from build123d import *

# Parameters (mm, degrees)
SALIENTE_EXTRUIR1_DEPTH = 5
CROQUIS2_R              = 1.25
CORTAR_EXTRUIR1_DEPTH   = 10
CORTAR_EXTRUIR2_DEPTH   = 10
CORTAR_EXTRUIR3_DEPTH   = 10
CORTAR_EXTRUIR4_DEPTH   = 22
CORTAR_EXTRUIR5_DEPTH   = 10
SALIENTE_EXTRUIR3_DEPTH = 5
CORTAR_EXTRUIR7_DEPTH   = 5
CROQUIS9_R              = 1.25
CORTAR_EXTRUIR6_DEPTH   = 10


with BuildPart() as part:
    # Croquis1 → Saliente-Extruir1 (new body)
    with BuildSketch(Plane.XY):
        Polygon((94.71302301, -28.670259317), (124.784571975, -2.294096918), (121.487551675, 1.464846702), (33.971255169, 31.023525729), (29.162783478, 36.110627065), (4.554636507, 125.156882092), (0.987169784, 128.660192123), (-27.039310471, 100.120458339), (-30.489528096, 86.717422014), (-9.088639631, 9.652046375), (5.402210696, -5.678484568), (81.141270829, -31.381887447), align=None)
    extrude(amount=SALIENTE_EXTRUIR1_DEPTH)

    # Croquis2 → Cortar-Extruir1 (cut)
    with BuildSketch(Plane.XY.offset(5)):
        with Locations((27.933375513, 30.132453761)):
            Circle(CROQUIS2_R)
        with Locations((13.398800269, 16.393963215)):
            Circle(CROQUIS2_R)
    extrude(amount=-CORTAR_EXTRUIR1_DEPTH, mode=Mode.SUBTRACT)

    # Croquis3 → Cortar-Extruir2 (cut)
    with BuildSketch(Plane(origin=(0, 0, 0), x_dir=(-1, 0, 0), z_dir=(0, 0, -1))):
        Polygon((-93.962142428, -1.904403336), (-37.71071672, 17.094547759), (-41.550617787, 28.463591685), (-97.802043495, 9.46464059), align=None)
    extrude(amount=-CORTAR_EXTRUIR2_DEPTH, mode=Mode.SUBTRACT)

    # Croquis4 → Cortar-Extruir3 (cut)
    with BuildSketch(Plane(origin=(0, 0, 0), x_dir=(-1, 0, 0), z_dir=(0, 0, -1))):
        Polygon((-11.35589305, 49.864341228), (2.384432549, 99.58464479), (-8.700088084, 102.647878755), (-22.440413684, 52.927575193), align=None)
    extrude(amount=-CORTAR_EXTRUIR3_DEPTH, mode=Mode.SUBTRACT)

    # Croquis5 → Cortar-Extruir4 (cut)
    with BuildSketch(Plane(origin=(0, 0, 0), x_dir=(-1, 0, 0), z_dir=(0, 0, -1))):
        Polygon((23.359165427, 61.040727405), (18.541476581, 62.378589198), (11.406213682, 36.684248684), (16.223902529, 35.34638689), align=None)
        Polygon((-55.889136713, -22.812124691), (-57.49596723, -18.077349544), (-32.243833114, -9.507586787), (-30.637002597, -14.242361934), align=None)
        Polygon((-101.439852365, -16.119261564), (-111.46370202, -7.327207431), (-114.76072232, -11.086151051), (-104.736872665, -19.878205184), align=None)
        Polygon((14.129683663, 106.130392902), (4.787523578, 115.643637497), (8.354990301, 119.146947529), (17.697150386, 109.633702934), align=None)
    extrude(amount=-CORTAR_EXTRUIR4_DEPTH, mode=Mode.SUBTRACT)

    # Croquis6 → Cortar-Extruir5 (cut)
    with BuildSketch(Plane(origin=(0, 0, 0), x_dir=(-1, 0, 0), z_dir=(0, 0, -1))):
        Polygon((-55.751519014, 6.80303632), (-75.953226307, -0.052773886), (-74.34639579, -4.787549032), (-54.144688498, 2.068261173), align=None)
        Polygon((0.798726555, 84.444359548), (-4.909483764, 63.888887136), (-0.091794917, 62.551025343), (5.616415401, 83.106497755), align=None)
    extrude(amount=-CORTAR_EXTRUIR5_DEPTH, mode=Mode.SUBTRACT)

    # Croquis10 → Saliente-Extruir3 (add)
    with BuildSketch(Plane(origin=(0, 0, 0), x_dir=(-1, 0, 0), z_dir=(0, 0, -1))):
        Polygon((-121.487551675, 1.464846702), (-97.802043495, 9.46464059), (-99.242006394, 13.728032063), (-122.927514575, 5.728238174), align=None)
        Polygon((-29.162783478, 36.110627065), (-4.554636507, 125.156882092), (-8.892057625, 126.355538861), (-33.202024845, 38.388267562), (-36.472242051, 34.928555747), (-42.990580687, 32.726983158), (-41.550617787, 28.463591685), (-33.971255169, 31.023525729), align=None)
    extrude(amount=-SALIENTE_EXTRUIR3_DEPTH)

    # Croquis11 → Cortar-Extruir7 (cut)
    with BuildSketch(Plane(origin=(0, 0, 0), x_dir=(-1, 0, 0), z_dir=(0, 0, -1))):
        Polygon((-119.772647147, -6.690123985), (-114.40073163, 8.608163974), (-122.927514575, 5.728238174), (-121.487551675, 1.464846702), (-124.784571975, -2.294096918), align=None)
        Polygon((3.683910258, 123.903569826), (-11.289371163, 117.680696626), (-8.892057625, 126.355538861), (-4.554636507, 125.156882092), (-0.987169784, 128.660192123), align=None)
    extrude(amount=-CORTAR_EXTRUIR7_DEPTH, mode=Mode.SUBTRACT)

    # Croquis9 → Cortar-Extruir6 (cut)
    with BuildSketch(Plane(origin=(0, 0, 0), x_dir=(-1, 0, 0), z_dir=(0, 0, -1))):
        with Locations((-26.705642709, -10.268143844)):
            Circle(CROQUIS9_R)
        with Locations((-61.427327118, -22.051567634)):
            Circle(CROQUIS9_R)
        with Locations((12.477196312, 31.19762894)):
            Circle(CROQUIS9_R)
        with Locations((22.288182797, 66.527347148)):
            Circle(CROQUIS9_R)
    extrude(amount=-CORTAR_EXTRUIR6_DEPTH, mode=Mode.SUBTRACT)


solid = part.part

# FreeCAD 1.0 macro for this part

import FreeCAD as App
import Part
import Sketcher
Q = App.Units.Quantity


def add_polygon(sketch, points):
    """Adds a closed chain of lines whose ends are joined by coincident constraints."""
    first, n = sketch.GeometryCount, len(points)
    for a, b in zip(points, points[1:] + points[:1]):
        sketch.addGeometry(Part.LineSegment(App.Vector(*a, 0), App.Vector(*b, 0)), False)
    for i in range(n):
        sketch.addConstraint(Sketcher.Constraint("Coincident", first + i, 2, first + (i + 1) % n, 1))

doc = App.newDocument("Part")
params = doc.addObject("Spreadsheet::Sheet", "Params")
for row, (alias, value) in enumerate([
    ("sketch1_length", "40 mm"),
    ("sketch1_length2", "5 mm"),
    ("sketch1_length3", "7 mm"),
    ("pad1_length", "5 mm"),
    ("sketch2_diameter", "2.5 mm"),
    ("pocket1_length", "10 mm"),
    ("sketch3_length", "12 mm"),
    ("pocket2_length", "10 mm"),
    ("sketch4_length", "11.5 mm"),
    ("pocket3_length", "10 mm"),
    ("sketch5_length", "5 mm"),
    ("pocket4_length", "22 mm"),
    ("sketch6_length", "5 mm"),
    ("pocket5_length", "10 mm"),
    ("sketch7_length", "25 mm"),
    ("sketch7_length2", "8 mm"),
    ("sketch7_length3", "7 mm"),
    ("sketch7_length4", "4.5 mm"),
    ("pad2_length", "5 mm"),
    ("sketch8_length", "9 mm"),
    ("sketch8_length2", "5 mm"),
    ("sketch8_length3", "4.5 mm"),
    ("pocket6_length", "5 mm"),
    ("sketch9_diameter", "2.5 mm"),
    ("pocket7_length", "10 mm"),
], start=1):
    params.set(f"A{row}", alias)
    params.set(f"B{row}", "=" + value)
    params.setAlias(f"B{row}", alias)

body = doc.addObject("PartDesign::Body", "Body")

sketch1 = body.newObject("Sketcher::SketchObject", "Sketch")
sketch1.AttachmentSupport = (doc.getObject("XY_Plane"), [""])
sketch1.MapMode = "FlatFace"
add_polygon(sketch1, [(94.713023, -28.670259), (124.784572, -2.294097), (121.487552, 1.464847), (33.971255, 31.023526), (29.162783, 36.110627), (4.554637, 125.156882), (0.98717, 128.660192), (-27.03931, 100.120458), (-30.489528, 86.717422), (-9.08864, 9.652046), (5.402211, -5.678485), (81.141271, -31.381887)])
sketch1.addConstraint(Sketcher.Constraint("Perpendicular", 0, 1))
sketch1.addConstraint(Sketcher.Constraint("Perpendicular", 5, 6))
sketch1.addConstraint(Sketcher.Constraint("Parallel", 3, 9))
sketch1.addConstraint(Sketcher.Constraint("Equal", 1, 5))
sketch1.addConstraint(Sketcher.Constraint("Equal", 0, 6))
sketch1.addConstraint(Sketcher.Constraint("Equal", 8, 10))
sketch1.addConstraint(Sketcher.Constraint("Equal", 7, 11))
sketch1.addConstraint(Sketcher.Constraint("Distance", 0, Q("40 mm")))
sketch1.addConstraint(Sketcher.Constraint("Distance", 1, Q("5 mm")))
sketch1.addConstraint(Sketcher.Constraint("Distance", 3, Q("7 mm")))
sketch1.addConstraint(Sketcher.Constraint("DistanceY", 2, 2, 3, 2, Q("5.087101 mm")))
sketch1.addConstraint(Sketcher.Constraint("DistanceX", 10, 2, 0, 2, Q("43.643301 mm")))
sketch1.addConstraint(Sketcher.Constraint("Distance", 2, Q("92.373252 mm")))
sketch1.addConstraint(Sketcher.Constraint("Distance", 4, Q("92.383962 mm")))
sketch1.addConstraint(Sketcher.Constraint("Distance", 9, Q("21.095258 mm")))
sketch1.addConstraint(Sketcher.Constraint("DistanceX", -1, 1, 0, 2, Q("124.784572 mm")))
sketch1.addConstraint(Sketcher.Constraint("DistanceX", -1, 1, 1, 2, Q("121.487552 mm")))
sketch1.addConstraint(Sketcher.Constraint("DistanceX", -1, 1, 5, 2, Q("0.98717 mm")))
sketch1.addConstraint(Sketcher.Constraint("DistanceX", 6, 2, -1, 1, Q("27.03931 mm")))
sketch1.addConstraint(Sketcher.Constraint("DistanceY", -1, 1, 6, 2, Q("100.120458 mm")))
sketch1.addConstraint(Sketcher.Constraint("DistanceX", 7, 2, -1, 1, Q("30.489528 mm")))
sketch1.addConstraint(Sketcher.Constraint("DistanceX", 8, 2, -1, 1, Q("9.08864 mm")))
sketch1.addConstraint(Sketcher.Constraint("DistanceY", 11, 2, -1, 1, Q("28.670259 mm")))
sketch1.addConstraint(Sketcher.Constraint("DistanceY", 7, 2, 4, 2, Q("38.43946 mm")))
sketch1.setExpression("Constraints[19]", "Params.sketch1_length")
sketch1.setExpression("Constraints[20]", "Params.sketch1_length2")
sketch1.setExpression("Constraints[21]", "Params.sketch1_length3")
pad1 = body.newObject("PartDesign::Pad", "Pad")
pad1.Profile = sketch1
pad1.setExpression("Length", "Params.pad1_length")

sketch2 = body.newObject("Sketcher::SketchObject", "Sketch001")
sketch2.AttachmentSupport = (doc.getObject("XY_Plane"), [""])
sketch2.MapMode = "FlatFace"
sketch2.AttachmentOffset = App.Placement(App.Vector(0, 0, 5), App.Rotation())
sketch2.addGeometry(Part.Circle(App.Vector(27.933376, 30.132454, 0), App.Vector(0, 0, 1), 1.25), False)
sketch2.addGeometry(Part.Circle(App.Vector(13.3988, 16.393963, 0), App.Vector(0, 0, 1), 1.25), False)
sketch2.addConstraint(Sketcher.Constraint("Equal", 0, 1))
sketch2.addConstraint(Sketcher.Constraint("Diameter", 0, Q("2.5 mm")))
sketch2.addConstraint(Sketcher.Constraint("DistanceX", -1, 1, 1, 3, Q("13.3988 mm")))
sketch2.addConstraint(Sketcher.Constraint("DistanceY", 1, 3, 0, 3, Q("13.738491 mm")))
sketch2.addConstraint(Sketcher.Constraint("DistanceX", -1, 1, 0, 3, Q("27.933376 mm")))
sketch2.addConstraint(Sketcher.Constraint("DistanceY", -1, 1, 0, 3, Q("30.132454 mm")))
sketch2.setExpression("Constraints[1]", "Params.sketch2_diameter")
pocket1 = body.newObject("PartDesign::Pocket", "Pocket")
pocket1.Profile = sketch2
pocket1.setExpression("Length", "Params.pocket1_length")

sketch3 = body.newObject("Sketcher::SketchObject", "Sketch002")
sketch3.AttachmentSupport = (doc.getObject("XY_Plane"), [""])
sketch3.MapMode = "FlatFace"
add_polygon(sketch3, [(93.962142, -1.904403), (37.710717, 17.094548), (41.550618, 28.463592), (97.802043, 9.464641)])
sketch3.addConstraint(Sketcher.Constraint("Perpendicular", 0, 1))
sketch3.addConstraint(Sketcher.Constraint("Perpendicular", 1, 2))
sketch3.addConstraint(Sketcher.Constraint("Perpendicular", 2, 3))
sketch3.addConstraint(Sketcher.Constraint("Distance", 1, Q("12 mm")))
sketch3.addConstraint(Sketcher.Constraint("DistanceX", 0, 2, 1, 2, Q("3.839901 mm")))
sketch3.addConstraint(Sketcher.Constraint("Distance", 0, Q("59.373252 mm")))
sketch3.addConstraint(Sketcher.Constraint("DistanceY", -1, 1, 1, 2, Q("28.463592 mm")))
sketch3.addConstraint(Sketcher.Constraint("DistanceX", -1, 1, 0, 2, Q("37.710717 mm")))
sketch3.setExpression("Constraints[7]", "Params.sketch3_length")
pocket2 = body.newObject("PartDesign::Pocket", "Pocket001")
pocket2.Profile = sketch3
pocket2.setExpression("Length", "Params.pocket2_length")
pocket2.Reversed = True

sketch4 = body.newObject("Sketcher::SketchObject", "Sketch003")
sketch4.AttachmentSupport = (doc.getObject("XY_Plane"), [""])
sketch4.MapMode = "FlatFace"
add_polygon(sketch4, [(11.355893, 49.864341), (-2.384433, 99.584645), (8.700088, 102.647879), (22.440414, 52.927575)])
sketch4.addConstraint(Sketcher.Constraint("Perpendicular", 0, 1))
sketch4.addConstraint(Sketcher.Constraint("Perpendicular", 1, 2))
sketch4.addConstraint(Sketcher.Constraint("Perpendicular", 2, 3))
sketch4.addConstraint(Sketcher.Constraint("Distance", 1, Q("11.5 mm")))
sketch4.addConstraint(Sketcher.Constraint("Distance", 0, Q("51.583962 mm")))
sketch4.addConstraint(Sketcher.Constraint("DistanceX", -1, 1, 1, 2, Q("8.700088 mm")))
sketch4.addConstraint(Sketcher.Constraint("DistanceY", -1, 1, 1, 2, Q("102.647879 mm")))
sketch4.addConstraint(Sketcher.Constraint("DistanceY", -1, 1, 3, 2, Q("49.864341 mm")))
sketch4.setExpression("Constraints[7]", "Params.sketch4_length")
pocket3 = body.newObject("PartDesign::Pocket", "Pocket002")
pocket3.Profile = sketch4
pocket3.setExpression("Length", "Params.pocket3_length")
pocket3.Reversed = True

sketch5 = body.newObject("Sketcher::SketchObject", "Sketch004")
sketch5.AttachmentSupport = (doc.getObject("XY_Plane"), [""])
sketch5.MapMode = "FlatFace"
add_polygon(sketch5, [(-23.359165, 61.040727), (-18.541477, 62.378589), (-11.406214, 36.684249), (-16.223903, 35.346387)])
add_polygon(sketch5, [(57.495967, -18.07735), (55.889137, -22.812125), (30.637003, -14.242362), (32.243833, -9.507587)])
add_polygon(sketch5, [(101.439852, -16.119262), (111.463702, -7.327207), (114.760722, -11.086151), (104.736873, -19.878205)])
add_polygon(sketch5, [(-4.787524, 115.643637), (-14.129684, 106.130393), (-17.69715, 109.633703), (-8.35499, 119.146948)])
sketch5.addConstraint(Sketcher.Constraint("Perpendicular", 0, 1))
sketch5.addConstraint(Sketcher.Constraint("Perpendicular", 1, 2))
sketch5.addConstraint(Sketcher.Constraint("Perpendicular", 2, 3))
sketch5.addConstraint(Sketcher.Constraint("Perpendicular", 4, 5))
sketch5.addConstraint(Sketcher.Constraint("Perpendicular", 5, 6))
sketch5.addConstraint(Sketcher.Constraint("Perpendicular", 6, 7))
sketch5.addConstraint(Sketcher.Constraint("Perpendicular", 8, 9))
sketch5.addConstraint(Sketcher.Constraint("Perpendicular", 9, 10))
sketch5.addConstraint(Sketcher.Constraint("Perpendicular", 10, 11))
sketch5.addConstraint(Sketcher.Constraint("Perpendicular", 12, 13))
sketch5.addConstraint(Sketcher.Constraint("Perpendicular", 13, 14))
sketch5.addConstraint(Sketcher.Constraint("Perpendicular", 14, 15))
sketch5.addConstraint(Sketcher.Constraint("Equal", 2, 4))
sketch5.addConstraint(Sketcher.Constraint("Equal", 3, 5))
sketch5.addConstraint(Sketcher.Constraint("Equal", 6, 9))
sketch5.addConstraint(Sketcher.Constraint("Equal", 10, 12))
sketch5.addConstraint(Sketcher.Constraint("Equal", 11, 13))
sketch5.addConstraint(Sketcher.Constraint("Distance", 0, Q("5 mm")))
sketch5.addConstraint(Sketcher.Constraint("DistanceY", 7, 2, 1, 2, Q("54.761598 mm")))
sketch5.addConstraint(Sketcher.Constraint("DistanceX", 5, 2, 8, 2, Q("80.826699 mm")))
sketch5.addConstraint(Sketcher.Constraint("DistanceY", 7, 2, 9, 2, Q("6.991198 mm")))
sketch5.addConstraint(Sketcher.Constraint("DistanceY", 1, 2, 14, 2, Q("82.462699 mm")))
sketch5.addConstraint(Sketcher.Constraint("DistanceY", -1, 1, 0, 2, Q("62.378589 mm")))
sketch5.addConstraint(Sketcher.Constraint("DistanceY", -1, 1, 1, 2, Q("36.684249 mm")))
sketch5.addConstraint(Sketcher.Constraint("DistanceY", 5, 2, -1, 1, Q("14.242362 mm")))
sketch5.addConstraint(Sketcher.Constraint("DistanceY", 11, 2, -1, 1, Q("16.119262 mm")))
sketch5.addConstraint(Sketcher.Constraint("DistanceX", 13, 2, -1, 1, Q("17.69715 mm")))
sketch5.addConstraint(Sketcher.Constraint("DistanceX", 14, 2, -1, 1, Q("8.35499 mm")))
sketch5.addConstraint(Sketcher.Constraint("DistanceX", 2, 2, 1, 2, Q("4.817689 mm")))
sketch5.addConstraint(Sketcher.Constraint("DistanceX", 1, 2, 4, 2, Q("67.29535 mm")))
sketch5.addConstraint(Sketcher.Constraint("DistanceY", 6, 2, 8, 2, Q("2.180379 mm")))
sketch5.addConstraint(Sketcher.Constraint("DistanceX", 3, 2, 12, 2, Q("9.229482 mm")))
sketch5.setExpression("Constraints[33]", "Params.sketch5_length")
pocket4 = body.newObject("PartDesign::Pocket", "Pocket003")
pocket4.Profile = sketch5
pocket4.setExpression("Length", "Params.pocket4_length")
pocket4.Reversed = True

sketch6 = body.newObject("Sketcher::SketchObject", "Sketch005")
sketch6.AttachmentSupport = (doc.getObject("XY_Plane"), [""])
sketch6.MapMode = "FlatFace"
add_polygon(sketch6, [(55.751519, 6.803036), (75.953226, -0.052774), (74.346396, -4.787549), (54.144688, 2.068261)])
add_polygon(sketch6, [(-0.798727, 84.44436), (4.909484, 63.888887), (0.091795, 62.551025), (-5.616415, 83.106498)])
sketch6.addConstraint(Sketcher.Constraint("Perpendicular", 0, 1))
sketch6.addConstraint(Sketcher.Constraint("Perpendicular", 1, 2))
sketch6.addConstraint(Sketcher.Constraint("Perpendicular", 2, 3))
sketch6.addConstraint(Sketcher.Constraint("Perpendicular", 4, 5))
sketch6.addConstraint(Sketcher.Constraint("Perpendicular", 5, 6))
sketch6.addConstraint(Sketcher.Constraint("Perpendicular", 6, 7))
sketch6.addConstraint(Sketcher.Constraint("Equal", 2, 4))
sketch6.addConstraint(Sketcher.Constraint("Equal", 3, 5))
sketch6.addConstraint(Sketcher.Constraint("Distance", 1, Q("5 mm")))
sketch6.addConstraint(Sketcher.Constraint("DistanceY", 0, 2, 5, 2, Q("62.603799 mm")))
sketch6.addConstraint(Sketcher.Constraint("DistanceX", 5, 2, 1, 2, Q("74.254601 mm")))
sketch6.addConstraint(Sketcher.Constraint("DistanceX", 6, 2, 4, 2, Q("10.525899 mm")))
sketch6.addConstraint(Sketcher.Constraint("DistanceY", 2, 2, 7, 2, Q("82.376098 mm")))
sketch6.addConstraint(Sketcher.Constraint("DistanceY", 1, 2, -1, 1, Q("4.787549 mm")))
sketch6.addConstraint(Sketcher.Constraint("DistanceX", -1, 1, 2, 2, Q("54.144688 mm")))
sketch6.addConstraint(Sketcher.Constraint("DistanceY", -1, 1, 2, 2, Q("2.068261 mm")))
sketch6.setExpression("Constraints[16]", "Params.sketch6_length")
pocket5 = body.newObject("PartDesign::Pocket", "Pocket004")
pocket5.Profile = sketch6
pocket5.setExpression("Length", "Params.pocket5_length")
pocket5.Reversed = True

sketch7 = body.newObject("Sketcher::SketchObject", "Sketch006")
sketch7.AttachmentSupport = (doc.getObject("XY_Plane"), [""])
sketch7.MapMode = "FlatFace"
add_polygon(sketch7, [(121.487552, 1.464847), (97.802043, 9.464641), (99.242006, 13.728032), (122.927515, 5.728238)])
add_polygon(sketch7, [(29.162783, 36.110627), (4.554637, 125.156882), (8.892058, 126.355539), (33.202025, 38.388268), (36.472242, 34.928556), (42.990581, 32.726983), (41.550618, 28.463592), (33.971255, 31.023526)])
sketch7.addConstraint(Sketcher.Constraint("Perpendicular", 0, 1))
sketch7.addConstraint(Sketcher.Constraint("Perpendicular", 1, 2))
sketch7.addConstraint(Sketcher.Constraint("Perpendicular", 2, 3))
sketch7.addConstraint(Sketcher.Constraint("Perpendicular", 4, 5))
sketch7.addConstraint(Sketcher.Constraint("Perpendicular", 5, 6))
sketch7.addConstraint(Sketcher.Constraint("Perpendicular", 3, 8))
sketch7.addConstraint(Sketcher.Constraint("Perpendicular", 8, 9))
sketch7.addConstraint(Sketcher.Constraint("Perpendicular", 9, 10))
sketch7.addConstraint(Sketcher.Constraint("Parallel", 7, 11))
sketch7.addConstraint(Sketcher.Constraint("Equal", 3, 5))
sketch7.addConstraint(Sketcher.Constraint("Equal", 5, 9))
sketch7.addConstraint(Sketcher.Constraint("Distance", 0, Q("25 mm")))
sketch7.addConstraint(Sketcher.Constraint("Distance", 10, Q("8 mm")))
sketch7.addConstraint(Sketcher.Constraint("Distance", 11, Q("7 mm")))
sketch7.addConstraint(Sketcher.Constraint("Distance", 1, Q("4.5 mm")))
sketch7.addConstraint(Sketcher.Constraint("DistanceY", 0, 2, 5, 2, Q("116.890898 mm")))
sketch7.addConstraint(Sketcher.Constraint("DistanceY", 2, 2, 5, 2, Q("120.627301 mm")))
sketch7.addConstraint(Sketcher.Constraint("DistanceX", 7, 2, 0, 2, Q("61.329801 mm")))
sketch7.addConstraint(Sketcher.Constraint("DistanceY", 10, 2, 11, 2, Q("5.087101 mm")))
sketch7.addConstraint(Sketcher.Constraint("Distance", 4, Q("92.383962 mm")))
sketch7.addConstraint(Sketcher.Constraint("Distance", 8, Q("6.880092 mm")))
sketch7.addConstraint(Sketcher.Constraint("DistanceY", -1, 1, 0, 2, Q("9.464641 mm")))
sketch7.addConstraint(Sketcher.Constraint("DistanceX", -1, 1, 3, 2, Q("121.487552 mm")))
sketch7.addConstraint(Sketcher.Constraint("DistanceY", -1, 1, 9, 2, Q("28.463592 mm")))
sketch7.setExpression("Constraints[23]", "Params.sketch7_length")
sketch7.setExpression("Constraints[24]", "Params.sketch7_length2")
sketch7.setExpression("Constraints[25]", "Params.sketch7_length3")
sketch7.setExpression("Constraints[26]", "Params.sketch7_length4")
pad2 = body.newObject("PartDesign::Pad", "Pad001")
pad2.Profile = sketch7
pad2.setExpression("Length", "Params.pad2_length")

sketch8 = body.newObject("Sketcher::SketchObject", "Sketch007")
sketch8.AttachmentSupport = (doc.getObject("XY_Plane"), [""])
sketch8.MapMode = "FlatFace"
add_polygon(sketch8, [(119.772647, -6.690124), (114.400732, 8.608164), (122.927515, 5.728238), (121.487552, 1.464847), (124.784572, -2.294097)])
add_polygon(sketch8, [(11.289371, 117.680697), (-3.68391, 123.90357), (0.98717, 128.660192), (4.554637, 125.156882), (8.892058, 126.355539)])
sketch8.addConstraint(Sketcher.Constraint("Perpendicular", 1, 2))
sketch8.addConstraint(Sketcher.Constraint("Perpendicular", 3, 4))
sketch8.addConstraint(Sketcher.Constraint("Perpendicular", 6, 7))
sketch8.addConstraint(Sketcher.Constraint("Perpendicular", 8, 9))
sketch8.addConstraint(Sketcher.Constraint("Equal", 4, 6))
sketch8.addConstraint(Sketcher.Constraint("Equal", 3, 7))
sketch8.addConstraint(Sketcher.Constraint("Equal", 2, 8))
sketch8.addConstraint(Sketcher.Constraint("Equal", 1, 9))
sketch8.addConstraint(Sketcher.Constraint("Distance", 1, Q("9 mm")))
sketch8.addConstraint(Sketcher.Constraint("Distance", 3, Q("5 mm")))
sketch8.addConstraint(Sketcher.Constraint("Distance", 2, Q("4.5 mm")))
sketch8.addConstraint(Sketcher.Constraint("DistanceY", 1, 2, 8, 2, Q("120.627301 mm")))
sketch8.addConstraint(Sketcher.Constraint("DistanceX", 6, 2, 9, 2, Q("10.302201 mm")))
sketch8.addConstraint(Sketcher.Constraint("Distance", 0, Q("16.21404 mm")))
sketch8.addConstraint(Sketcher.Constraint("Distance", 5, Q("16.21491 mm")))
sketch8.addConstraint(Sketcher.Constraint("DistanceX", -1, 1, 0, 2, Q("114.400732 mm")))
sketch8.addConstraint(Sketcher.Constraint("DistanceY", -1, 1, 1, 2, Q("5.728238 mm")))
sketch8.addConstraint(Sketcher.Constraint("DistanceX", -1, 1, 2, 2, Q("121.487552 mm")))
sketch8.addConstraint(Sketcher.Constraint("DistanceX", -1, 1, 3, 2, Q("124.784572 mm")))
sketch8.addConstraint(Sketcher.Constraint("DistanceX", 5, 2, -1, 1, Q("3.68391 mm")))
sketch8.setExpression("Constraints[18]", "Params.sketch8_length")
sketch8.setExpression("Constraints[19]", "Params.sketch8_length2")
sketch8.setExpression("Constraints[20]", "Params.sketch8_length3")
pocket6 = body.newObject("PartDesign::Pocket", "Pocket005")
pocket6.Profile = sketch8
pocket6.setExpression("Length", "Params.pocket6_length")
pocket6.Reversed = True

sketch9 = body.newObject("Sketcher::SketchObject", "Sketch008")
sketch9.AttachmentSupport = (doc.getObject("XY_Plane"), [""])
sketch9.MapMode = "FlatFace"
sketch9.addGeometry(Part.Circle(App.Vector(26.705643, -10.268144, 0), App.Vector(0, 0, 1), 1.25), False)
sketch9.addGeometry(Part.Circle(App.Vector(61.427327, -22.051568, 0), App.Vector(0, 0, 1), 1.25), False)
sketch9.addGeometry(Part.Circle(App.Vector(-12.477196, 31.197629, 0), App.Vector(0, 0, 1), 1.25), False)
sketch9.addGeometry(Part.Circle(App.Vector(-22.288183, 66.527347, 0), App.Vector(0, 0, 1), 1.25), False)
sketch9.addConstraint(Sketcher.Constraint("Equal", 0, 1))
sketch9.addConstraint(Sketcher.Constraint("Equal", 1, 2))
sketch9.addConstraint(Sketcher.Constraint("Equal", 2, 3))
sketch9.addConstraint(Sketcher.Constraint("Diameter", 0, Q("2.5 mm")))
sketch9.addConstraint(Sketcher.Constraint("DistanceY", -1, 1, 2, 3, Q("31.197629 mm")))
sketch9.addConstraint(Sketcher.Constraint("DistanceX", 2, 3, 0, 3, Q("39.182839 mm")))
sketch9.addConstraint(Sketcher.Constraint("DistanceY", 2, 3, 3, 3, Q("35.329718 mm")))
sketch9.addConstraint(Sketcher.Constraint("DistanceY", 0, 3, 3, 3, Q("76.795491 mm")))
sketch9.addConstraint(Sketcher.Constraint("DistanceX", 3, 3, 1, 3, Q("83.71551 mm")))
sketch9.addConstraint(Sketcher.Constraint("DistanceX", -1, 1, 0, 3, Q("26.705643 mm")))
sketch9.addConstraint(Sketcher.Constraint("DistanceX", -1, 1, 1, 3, Q("61.427327 mm")))
sketch9.addConstraint(Sketcher.Constraint("DistanceY", 1, 3, -1, 1, Q("22.051568 mm")))
sketch9.setExpression("Constraints[3]", "Params.sketch9_diameter")
pocket7 = body.newObject("PartDesign::Pocket", "Pocket006")
pocket7.Profile = sketch9
pocket7.setExpression("Length", "Params.pocket7_length")
pocket7.Reversed = True

doc.recompute()
